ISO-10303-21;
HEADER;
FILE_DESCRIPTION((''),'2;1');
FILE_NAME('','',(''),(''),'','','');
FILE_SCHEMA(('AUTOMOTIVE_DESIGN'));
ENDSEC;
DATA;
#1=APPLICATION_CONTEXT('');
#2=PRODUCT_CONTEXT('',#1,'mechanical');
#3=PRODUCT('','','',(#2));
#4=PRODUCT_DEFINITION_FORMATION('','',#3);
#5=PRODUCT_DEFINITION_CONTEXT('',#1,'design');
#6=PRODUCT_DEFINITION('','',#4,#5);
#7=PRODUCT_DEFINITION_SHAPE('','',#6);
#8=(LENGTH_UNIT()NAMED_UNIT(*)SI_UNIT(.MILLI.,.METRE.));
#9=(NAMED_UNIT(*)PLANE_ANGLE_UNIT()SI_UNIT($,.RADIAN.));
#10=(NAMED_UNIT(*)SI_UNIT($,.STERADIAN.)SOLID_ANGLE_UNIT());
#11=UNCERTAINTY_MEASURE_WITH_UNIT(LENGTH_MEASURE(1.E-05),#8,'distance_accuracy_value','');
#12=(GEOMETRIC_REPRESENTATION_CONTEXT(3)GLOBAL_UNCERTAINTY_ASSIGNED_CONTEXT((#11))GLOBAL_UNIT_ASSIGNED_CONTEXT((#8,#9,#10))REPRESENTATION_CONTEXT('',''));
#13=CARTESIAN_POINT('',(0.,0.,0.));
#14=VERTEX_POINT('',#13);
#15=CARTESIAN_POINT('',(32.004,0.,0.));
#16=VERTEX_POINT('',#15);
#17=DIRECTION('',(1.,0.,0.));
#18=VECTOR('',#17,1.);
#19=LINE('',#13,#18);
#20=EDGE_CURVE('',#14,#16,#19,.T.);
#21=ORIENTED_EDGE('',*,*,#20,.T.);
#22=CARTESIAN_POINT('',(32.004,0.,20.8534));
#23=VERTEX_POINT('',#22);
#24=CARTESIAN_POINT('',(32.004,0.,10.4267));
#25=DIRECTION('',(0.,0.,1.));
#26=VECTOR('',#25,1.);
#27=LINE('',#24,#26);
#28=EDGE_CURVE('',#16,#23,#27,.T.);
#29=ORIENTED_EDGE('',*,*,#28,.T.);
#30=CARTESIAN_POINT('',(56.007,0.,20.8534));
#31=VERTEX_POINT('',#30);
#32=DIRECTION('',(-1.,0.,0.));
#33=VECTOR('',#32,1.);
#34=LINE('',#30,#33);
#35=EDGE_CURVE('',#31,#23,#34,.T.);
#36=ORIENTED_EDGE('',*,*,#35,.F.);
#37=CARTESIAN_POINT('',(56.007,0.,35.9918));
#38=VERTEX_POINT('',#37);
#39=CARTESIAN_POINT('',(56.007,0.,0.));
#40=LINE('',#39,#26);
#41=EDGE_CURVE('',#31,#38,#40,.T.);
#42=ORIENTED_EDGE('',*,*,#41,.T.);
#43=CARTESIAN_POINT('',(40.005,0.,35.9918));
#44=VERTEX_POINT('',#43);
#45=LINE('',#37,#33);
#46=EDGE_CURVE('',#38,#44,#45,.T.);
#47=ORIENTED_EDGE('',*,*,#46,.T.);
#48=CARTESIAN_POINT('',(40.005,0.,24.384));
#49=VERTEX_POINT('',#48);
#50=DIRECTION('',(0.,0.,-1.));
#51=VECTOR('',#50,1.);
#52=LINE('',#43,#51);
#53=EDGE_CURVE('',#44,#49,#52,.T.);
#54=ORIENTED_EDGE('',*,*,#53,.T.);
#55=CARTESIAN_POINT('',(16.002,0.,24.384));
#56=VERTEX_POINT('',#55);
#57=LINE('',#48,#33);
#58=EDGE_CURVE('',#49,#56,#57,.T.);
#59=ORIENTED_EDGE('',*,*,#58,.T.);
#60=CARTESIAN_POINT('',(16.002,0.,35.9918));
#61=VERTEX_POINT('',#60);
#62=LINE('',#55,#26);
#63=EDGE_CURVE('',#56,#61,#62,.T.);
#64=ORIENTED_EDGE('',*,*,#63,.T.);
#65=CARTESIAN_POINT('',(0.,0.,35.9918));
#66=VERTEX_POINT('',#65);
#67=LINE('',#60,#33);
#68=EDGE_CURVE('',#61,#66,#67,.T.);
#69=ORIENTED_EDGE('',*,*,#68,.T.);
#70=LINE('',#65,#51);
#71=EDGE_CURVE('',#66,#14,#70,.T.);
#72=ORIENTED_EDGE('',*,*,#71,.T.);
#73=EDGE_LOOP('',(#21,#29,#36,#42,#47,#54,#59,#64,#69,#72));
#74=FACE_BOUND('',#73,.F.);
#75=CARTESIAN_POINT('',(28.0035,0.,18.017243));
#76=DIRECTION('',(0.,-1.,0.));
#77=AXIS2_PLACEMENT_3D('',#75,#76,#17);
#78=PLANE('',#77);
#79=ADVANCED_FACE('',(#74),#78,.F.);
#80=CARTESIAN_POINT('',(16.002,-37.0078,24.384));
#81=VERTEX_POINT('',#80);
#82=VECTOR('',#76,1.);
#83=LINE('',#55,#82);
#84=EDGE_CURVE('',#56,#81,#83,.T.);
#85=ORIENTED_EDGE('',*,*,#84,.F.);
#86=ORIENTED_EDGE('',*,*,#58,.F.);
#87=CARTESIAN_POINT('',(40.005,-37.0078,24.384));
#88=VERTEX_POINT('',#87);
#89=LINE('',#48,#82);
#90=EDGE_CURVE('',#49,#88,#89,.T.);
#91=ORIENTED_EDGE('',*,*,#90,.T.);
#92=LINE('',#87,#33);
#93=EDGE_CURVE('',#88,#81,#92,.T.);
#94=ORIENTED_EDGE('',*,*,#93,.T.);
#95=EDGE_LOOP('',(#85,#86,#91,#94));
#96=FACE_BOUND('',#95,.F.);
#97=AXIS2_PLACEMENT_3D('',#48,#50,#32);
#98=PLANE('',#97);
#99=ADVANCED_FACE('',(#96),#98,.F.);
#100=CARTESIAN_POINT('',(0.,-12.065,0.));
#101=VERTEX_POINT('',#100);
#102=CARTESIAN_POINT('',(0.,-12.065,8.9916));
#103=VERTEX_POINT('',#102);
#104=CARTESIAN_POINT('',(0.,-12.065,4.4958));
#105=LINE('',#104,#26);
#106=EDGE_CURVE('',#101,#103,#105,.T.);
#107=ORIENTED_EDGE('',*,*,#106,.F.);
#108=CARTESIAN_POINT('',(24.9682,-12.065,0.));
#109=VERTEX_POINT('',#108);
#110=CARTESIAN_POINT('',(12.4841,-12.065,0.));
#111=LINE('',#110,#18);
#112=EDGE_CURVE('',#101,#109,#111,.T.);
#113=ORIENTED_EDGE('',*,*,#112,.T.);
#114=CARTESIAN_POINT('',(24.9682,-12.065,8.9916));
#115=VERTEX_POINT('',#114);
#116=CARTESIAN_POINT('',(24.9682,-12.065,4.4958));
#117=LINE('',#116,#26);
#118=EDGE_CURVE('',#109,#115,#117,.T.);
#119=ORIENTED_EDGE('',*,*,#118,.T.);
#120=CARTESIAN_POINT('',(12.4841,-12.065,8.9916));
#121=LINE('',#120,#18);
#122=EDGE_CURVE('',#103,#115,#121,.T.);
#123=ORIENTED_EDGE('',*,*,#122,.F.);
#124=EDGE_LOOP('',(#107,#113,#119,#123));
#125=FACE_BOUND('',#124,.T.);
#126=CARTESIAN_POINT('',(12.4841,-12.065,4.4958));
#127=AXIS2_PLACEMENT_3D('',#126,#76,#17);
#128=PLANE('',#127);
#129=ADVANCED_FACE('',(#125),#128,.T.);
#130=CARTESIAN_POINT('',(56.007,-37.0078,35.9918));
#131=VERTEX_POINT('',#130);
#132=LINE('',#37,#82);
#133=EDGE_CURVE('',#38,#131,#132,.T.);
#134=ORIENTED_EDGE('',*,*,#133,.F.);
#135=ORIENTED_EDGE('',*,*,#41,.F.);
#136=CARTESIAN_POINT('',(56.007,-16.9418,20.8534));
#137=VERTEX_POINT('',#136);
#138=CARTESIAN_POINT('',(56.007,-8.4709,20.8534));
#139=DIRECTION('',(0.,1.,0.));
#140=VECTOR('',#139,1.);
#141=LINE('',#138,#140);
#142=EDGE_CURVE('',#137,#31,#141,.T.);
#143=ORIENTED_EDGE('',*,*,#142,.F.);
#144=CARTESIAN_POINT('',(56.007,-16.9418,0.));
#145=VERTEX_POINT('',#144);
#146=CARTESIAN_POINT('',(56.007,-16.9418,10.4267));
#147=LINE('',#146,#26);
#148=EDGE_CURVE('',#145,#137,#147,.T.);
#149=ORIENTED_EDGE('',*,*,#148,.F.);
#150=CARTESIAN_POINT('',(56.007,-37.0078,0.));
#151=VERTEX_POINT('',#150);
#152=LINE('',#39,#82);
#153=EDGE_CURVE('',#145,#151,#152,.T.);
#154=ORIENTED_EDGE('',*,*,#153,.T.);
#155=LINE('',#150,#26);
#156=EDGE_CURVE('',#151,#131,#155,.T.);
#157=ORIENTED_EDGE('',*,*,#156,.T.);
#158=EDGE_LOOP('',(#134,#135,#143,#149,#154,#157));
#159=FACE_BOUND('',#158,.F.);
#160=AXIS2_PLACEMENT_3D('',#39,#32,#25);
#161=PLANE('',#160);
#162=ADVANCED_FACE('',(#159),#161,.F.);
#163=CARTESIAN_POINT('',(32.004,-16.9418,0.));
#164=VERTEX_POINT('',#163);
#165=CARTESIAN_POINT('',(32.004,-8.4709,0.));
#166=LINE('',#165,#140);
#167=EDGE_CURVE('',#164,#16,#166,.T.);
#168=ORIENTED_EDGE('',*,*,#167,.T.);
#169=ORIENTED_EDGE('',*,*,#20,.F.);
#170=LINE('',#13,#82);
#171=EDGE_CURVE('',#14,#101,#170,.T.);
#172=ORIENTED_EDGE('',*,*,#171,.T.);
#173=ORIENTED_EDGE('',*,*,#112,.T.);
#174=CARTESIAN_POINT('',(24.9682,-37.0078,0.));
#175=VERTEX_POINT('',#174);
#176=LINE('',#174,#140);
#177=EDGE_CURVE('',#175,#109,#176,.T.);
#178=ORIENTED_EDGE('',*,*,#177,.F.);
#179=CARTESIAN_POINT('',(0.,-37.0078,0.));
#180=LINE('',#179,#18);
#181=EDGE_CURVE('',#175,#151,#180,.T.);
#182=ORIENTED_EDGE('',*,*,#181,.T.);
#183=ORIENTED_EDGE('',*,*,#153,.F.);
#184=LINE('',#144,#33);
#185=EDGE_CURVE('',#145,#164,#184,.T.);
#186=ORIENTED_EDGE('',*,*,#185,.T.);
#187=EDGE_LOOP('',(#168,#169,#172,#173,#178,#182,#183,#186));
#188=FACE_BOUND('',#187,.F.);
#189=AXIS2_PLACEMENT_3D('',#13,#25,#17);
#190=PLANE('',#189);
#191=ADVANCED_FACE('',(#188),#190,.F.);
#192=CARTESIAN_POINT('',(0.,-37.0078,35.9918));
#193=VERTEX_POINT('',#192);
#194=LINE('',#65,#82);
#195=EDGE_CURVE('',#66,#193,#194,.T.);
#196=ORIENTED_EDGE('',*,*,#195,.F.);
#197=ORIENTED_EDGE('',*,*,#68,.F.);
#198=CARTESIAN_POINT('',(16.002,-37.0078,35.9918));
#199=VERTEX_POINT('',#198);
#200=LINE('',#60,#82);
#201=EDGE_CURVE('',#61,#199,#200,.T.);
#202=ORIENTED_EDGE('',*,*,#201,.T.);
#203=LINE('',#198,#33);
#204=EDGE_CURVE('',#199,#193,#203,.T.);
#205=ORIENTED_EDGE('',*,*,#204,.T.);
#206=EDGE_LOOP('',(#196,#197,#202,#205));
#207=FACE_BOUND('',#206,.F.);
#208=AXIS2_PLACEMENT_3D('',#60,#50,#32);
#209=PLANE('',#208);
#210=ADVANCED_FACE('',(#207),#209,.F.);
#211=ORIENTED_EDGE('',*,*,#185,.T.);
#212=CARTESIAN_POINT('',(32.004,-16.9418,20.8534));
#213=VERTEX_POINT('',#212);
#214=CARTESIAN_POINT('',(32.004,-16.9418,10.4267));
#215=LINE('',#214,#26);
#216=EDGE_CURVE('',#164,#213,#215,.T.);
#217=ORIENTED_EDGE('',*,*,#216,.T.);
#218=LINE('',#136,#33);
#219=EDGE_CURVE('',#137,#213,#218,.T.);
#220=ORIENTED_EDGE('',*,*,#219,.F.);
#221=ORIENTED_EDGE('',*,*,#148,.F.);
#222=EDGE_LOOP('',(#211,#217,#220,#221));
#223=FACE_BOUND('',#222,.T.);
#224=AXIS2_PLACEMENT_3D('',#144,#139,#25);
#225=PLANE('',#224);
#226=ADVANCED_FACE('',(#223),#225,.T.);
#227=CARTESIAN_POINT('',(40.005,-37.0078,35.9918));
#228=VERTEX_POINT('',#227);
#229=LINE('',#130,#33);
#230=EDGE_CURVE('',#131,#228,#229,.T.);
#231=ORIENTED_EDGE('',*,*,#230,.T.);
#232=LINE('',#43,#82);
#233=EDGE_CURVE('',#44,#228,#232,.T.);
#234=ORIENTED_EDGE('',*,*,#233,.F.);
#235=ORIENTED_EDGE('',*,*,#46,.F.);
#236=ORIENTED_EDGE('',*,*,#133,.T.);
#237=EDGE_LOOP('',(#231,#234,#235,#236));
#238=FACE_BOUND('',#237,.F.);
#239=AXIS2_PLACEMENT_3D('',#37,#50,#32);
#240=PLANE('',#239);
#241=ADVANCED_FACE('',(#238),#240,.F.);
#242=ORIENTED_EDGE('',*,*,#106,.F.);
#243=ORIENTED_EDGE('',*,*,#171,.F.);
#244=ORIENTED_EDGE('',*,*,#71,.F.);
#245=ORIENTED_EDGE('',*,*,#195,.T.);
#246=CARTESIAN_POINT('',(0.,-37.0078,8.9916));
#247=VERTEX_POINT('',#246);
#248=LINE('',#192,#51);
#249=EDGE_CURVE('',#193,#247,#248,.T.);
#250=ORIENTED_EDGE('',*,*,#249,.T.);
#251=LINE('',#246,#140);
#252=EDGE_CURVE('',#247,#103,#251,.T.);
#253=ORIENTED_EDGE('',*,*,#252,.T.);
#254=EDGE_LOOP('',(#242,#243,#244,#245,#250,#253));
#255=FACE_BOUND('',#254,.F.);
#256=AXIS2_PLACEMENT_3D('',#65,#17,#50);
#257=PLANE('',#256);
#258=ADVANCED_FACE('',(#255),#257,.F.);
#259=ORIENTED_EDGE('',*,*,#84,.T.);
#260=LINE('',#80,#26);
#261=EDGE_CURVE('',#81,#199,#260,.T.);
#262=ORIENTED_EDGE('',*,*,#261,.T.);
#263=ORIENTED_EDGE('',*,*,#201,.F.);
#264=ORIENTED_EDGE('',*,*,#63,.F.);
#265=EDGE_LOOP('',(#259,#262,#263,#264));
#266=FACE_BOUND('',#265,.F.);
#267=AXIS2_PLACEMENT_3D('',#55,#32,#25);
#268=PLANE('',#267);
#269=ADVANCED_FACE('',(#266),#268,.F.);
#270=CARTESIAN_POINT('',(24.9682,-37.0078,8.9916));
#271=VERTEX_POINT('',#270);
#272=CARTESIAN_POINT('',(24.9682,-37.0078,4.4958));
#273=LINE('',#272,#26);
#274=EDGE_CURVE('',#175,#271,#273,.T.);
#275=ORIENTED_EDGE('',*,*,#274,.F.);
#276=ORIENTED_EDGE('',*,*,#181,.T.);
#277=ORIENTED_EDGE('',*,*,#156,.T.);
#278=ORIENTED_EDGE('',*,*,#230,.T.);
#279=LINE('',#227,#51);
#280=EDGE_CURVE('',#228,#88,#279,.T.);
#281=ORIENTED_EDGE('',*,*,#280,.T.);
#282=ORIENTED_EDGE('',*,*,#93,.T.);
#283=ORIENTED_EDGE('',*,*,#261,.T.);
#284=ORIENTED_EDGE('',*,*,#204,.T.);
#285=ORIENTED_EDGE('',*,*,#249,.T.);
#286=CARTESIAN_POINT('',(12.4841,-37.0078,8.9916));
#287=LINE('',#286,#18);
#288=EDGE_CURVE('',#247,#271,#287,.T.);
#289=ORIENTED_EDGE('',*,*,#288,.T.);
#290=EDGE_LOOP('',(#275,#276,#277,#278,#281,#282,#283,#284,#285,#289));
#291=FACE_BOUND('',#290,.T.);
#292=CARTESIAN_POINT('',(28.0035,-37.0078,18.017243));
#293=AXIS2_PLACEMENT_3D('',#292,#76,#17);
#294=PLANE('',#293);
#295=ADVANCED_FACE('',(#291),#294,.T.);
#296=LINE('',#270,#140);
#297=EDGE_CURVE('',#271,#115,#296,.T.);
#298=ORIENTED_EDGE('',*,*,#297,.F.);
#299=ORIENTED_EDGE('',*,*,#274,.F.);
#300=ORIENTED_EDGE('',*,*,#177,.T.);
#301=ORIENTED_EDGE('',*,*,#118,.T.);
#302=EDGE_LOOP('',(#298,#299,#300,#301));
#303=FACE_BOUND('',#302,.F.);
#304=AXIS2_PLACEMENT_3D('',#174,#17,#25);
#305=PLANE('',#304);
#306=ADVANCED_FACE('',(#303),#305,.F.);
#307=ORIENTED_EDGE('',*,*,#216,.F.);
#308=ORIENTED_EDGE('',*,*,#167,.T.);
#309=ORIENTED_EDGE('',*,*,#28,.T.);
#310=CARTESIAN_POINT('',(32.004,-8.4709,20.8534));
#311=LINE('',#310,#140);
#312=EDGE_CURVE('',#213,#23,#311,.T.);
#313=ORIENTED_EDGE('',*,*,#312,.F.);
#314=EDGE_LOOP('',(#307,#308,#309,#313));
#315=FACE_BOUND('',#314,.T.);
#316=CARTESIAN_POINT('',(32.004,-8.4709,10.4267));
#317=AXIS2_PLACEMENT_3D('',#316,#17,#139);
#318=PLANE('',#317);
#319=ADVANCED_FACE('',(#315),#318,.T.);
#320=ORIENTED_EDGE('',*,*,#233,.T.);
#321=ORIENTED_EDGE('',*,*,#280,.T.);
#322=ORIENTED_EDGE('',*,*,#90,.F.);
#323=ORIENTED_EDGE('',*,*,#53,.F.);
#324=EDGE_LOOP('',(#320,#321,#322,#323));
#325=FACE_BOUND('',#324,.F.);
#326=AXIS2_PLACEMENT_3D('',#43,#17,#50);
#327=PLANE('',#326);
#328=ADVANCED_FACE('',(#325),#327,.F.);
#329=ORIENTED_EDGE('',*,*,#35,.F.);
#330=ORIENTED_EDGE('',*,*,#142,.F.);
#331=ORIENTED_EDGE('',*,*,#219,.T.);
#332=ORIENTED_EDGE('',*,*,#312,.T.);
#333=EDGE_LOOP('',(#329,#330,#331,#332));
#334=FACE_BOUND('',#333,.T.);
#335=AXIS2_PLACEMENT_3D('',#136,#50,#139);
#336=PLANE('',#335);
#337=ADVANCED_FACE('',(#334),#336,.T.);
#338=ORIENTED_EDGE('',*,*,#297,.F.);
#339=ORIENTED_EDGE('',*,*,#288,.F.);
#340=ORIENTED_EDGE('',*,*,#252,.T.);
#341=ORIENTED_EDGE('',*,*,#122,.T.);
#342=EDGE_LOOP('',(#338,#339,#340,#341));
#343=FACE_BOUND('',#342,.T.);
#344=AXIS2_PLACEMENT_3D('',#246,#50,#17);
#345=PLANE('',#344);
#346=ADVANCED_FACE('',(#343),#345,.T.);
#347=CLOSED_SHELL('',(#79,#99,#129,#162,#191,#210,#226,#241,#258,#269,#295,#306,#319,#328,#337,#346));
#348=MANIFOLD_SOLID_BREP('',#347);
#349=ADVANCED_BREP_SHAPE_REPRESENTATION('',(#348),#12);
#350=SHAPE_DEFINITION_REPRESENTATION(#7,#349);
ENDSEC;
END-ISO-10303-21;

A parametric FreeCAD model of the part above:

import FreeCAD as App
import Part
import Sketcher
from FreeCAD import Vector
Q = App.Units.Quantity

doc = App.newDocument("Part")
params = doc.addObject("Spreadsheet::Sheet", "Params")
for row, (alias, value) in enumerate([
    ("sketch1_width", "0.63 in"),
    ("sketch1_width2", "2.205 in"),
    ("sketch1_height", "1.417 in"),
    ("sketch1_height2", "0.457 in"),
    ("pad1_length", "1.457 in"),
    ("sketch2_width", "0.983 in"),
    ("sketch2_height", "0.354 in"),
    ("pocket1_length", "0.982 in"),
    ("sketch3_width", "0.667 in"),
    ("sketch3_height", "0.821 in"),
    ("pocket2_length", "0.945 in"),
], start=1):
    params.set(f"A{row}", alias)
    params.set(f"B{row}", "=" + value)
    params.setAlias(f"B{row}", alias)

body = doc.addObject("PartDesign::Body", "Body")

# Sketch on XZ plane
sketch1 = body.newObject("Sketcher::SketchObject", "Sketch")
sketch1.AttachmentSupport = (doc.getObject("XZ_Plane"), [""])
sketch1.MapMode = "FlatFace"
sketch1.addGeometry([
    Part.LineSegment(Vector(0, 36, 0), Vector(0, 0, 0)),  # 0
    Part.LineSegment(Vector(0, 0, 0), Vector(56, 0, 0)),  # 1
    Part.LineSegment(Vector(56, 0, 0), Vector(56, 36, 0)),  # 2
    Part.LineSegment(Vector(56, 36, 0), Vector(40, 36, 0)),  # 3
    Part.LineSegment(Vector(40, 36, 0), Vector(40, 24, 0)),  # 4
    Part.LineSegment(Vector(40, 24, 0), Vector(16, 24, 0)),  # 5
    Part.LineSegment(Vector(16, 24, 0), Vector(16, 36, 0)),  # 6
    Part.LineSegment(Vector(16, 36, 0), Vector(0, 36, 0)),  # 7
], False)
sketch1.addConstraint([
    Sketcher.Constraint("Coincident", 0, 2, 1, 1),
    Sketcher.Constraint("Coincident", 1, 2, 2, 1),
    Sketcher.Constraint("Coincident", 2, 2, 3, 1),
    Sketcher.Constraint("Coincident", 3, 2, 4, 1),
    Sketcher.Constraint("Coincident", 4, 2, 5, 1),
    Sketcher.Constraint("Coincident", 5, 2, 6, 1),
    Sketcher.Constraint("Coincident", 6, 2, 7, 1),
    Sketcher.Constraint("Coincident", 7, 2, 0, 1),
    Sketcher.Constraint("Vertical", 0),
    Sketcher.Constraint("Horizontal", 1),
    Sketcher.Constraint("Vertical", 2),
    Sketcher.Constraint("Horizontal", 3),
    Sketcher.Constraint("Vertical", 4),
    Sketcher.Constraint("Horizontal", 5),
    Sketcher.Constraint("Vertical", 6),
    Sketcher.Constraint("Horizontal", 7),
    Sketcher.Constraint("Coincident", 0, 2, -1, 1),
    Sketcher.Constraint("Horizontal", 3, 2, 6, 2),
    Sketcher.Constraint("Equal", 3, 7),
    Sketcher.Constraint("DistanceX", 3, 2, 3, 1, Q("0.63 in")),
    Sketcher.Constraint("DistanceX", 1, 1, 1, 2, Q("2.205 in")),
    Sketcher.Constraint("DistanceY", 0, 2, 0, 1, Q("1.417 in")),
    Sketcher.Constraint("DistanceY", 4, 2, 4, 1, Q("0.457 in")),
])
sketch1.setExpression("Constraints[19]", "Params.sketch1_width")
sketch1.setExpression("Constraints[20]", "Params.sketch1_width2")
sketch1.setExpression("Constraints[21]", "Params.sketch1_height")
sketch1.setExpression("Constraints[22]", "Params.sketch1_height2")
pad1 = body.newObject("PartDesign::Pad", "Pad")
pad1.Profile = sketch1
pad1.setExpression("Length", "Params.pad1_length")

# Sketch on XZ plane
sketch2 = body.newObject("Sketcher::SketchObject", "Sketch001")
sketch2.AttachmentSupport = (doc.getObject("XZ_Plane"), [""])
sketch2.MapMode = "FlatFace"
sketch2.AttachmentOffset = App.Placement(Vector(0, 0, 1.457 * 25.4), App.Rotation())
sketch2.addGeometry([
    Part.LineSegment(Vector(0, 9, 0), Vector(0, 0, 0)),
    Part.LineSegment(Vector(0, 0, 0), Vector(25, 0, 0)),
    Part.LineSegment(Vector(25, 0, 0), Vector(25, 9, 0)),
    Part.LineSegment(Vector(25, 9, 0), Vector(0, 9, 0)),
], False)
sketch2.addConstraint([
    Sketcher.Constraint("Coincident", 0, 2, 1, 1),
    Sketcher.Constraint("Coincident", 1, 2, 2, 1),
    Sketcher.Constraint("Coincident", 2, 2, 3, 1),
    Sketcher.Constraint("Coincident", 3, 2, 0, 1),
    Sketcher.Constraint("Vertical", 0),
    Sketcher.Constraint("Horizontal", 1),
    Sketcher.Constraint("Vertical", 2),
    Sketcher.Constraint("Horizontal", 3),
    Sketcher.Constraint("Coincident", 0, 2, -1, 1),
    Sketcher.Constraint("DistanceX", 1, 1, 1, 2, Q("0.983 in")),
    Sketcher.Constraint("DistanceY", 0, 2, 0, 1, Q("0.354 in")),
])
sketch2.setExpression("Constraints[9]", "Params.sketch2_width")
sketch2.setExpression("Constraints[10]", "Params.sketch2_height")
pocket1 = body.newObject("PartDesign::Pocket", "Pocket")
pocket1.Profile = sketch2
pocket1.setExpression("Length", "Params.pocket1_length")

# Sketch on YZ plane
sketch3 = body.newObject("Sketcher::SketchObject", "Sketch002")
sketch3.AttachmentSupport = (doc.getObject("YZ_Plane"), [""])
sketch3.MapMode = "FlatFace"
sketch3.AttachmentOffset = App.Placement(Vector(0, 0, 2.205 * 25.4), App.Rotation())
sketch3.addGeometry([
    Part.LineSegment(Vector(-17, 21, 0), Vector(-17, 0, 0)),
    Part.LineSegment(Vector(-17, 0, 0), Vector(0, 0, 0)),
    Part.LineSegment(Vector(0, 0, 0), Vector(0, 21, 0)),
    Part.LineSegment(Vector(0, 21, 0), Vector(-17, 21, 0)),
], False)
sketch3.addConstraint([
    Sketcher.Constraint("Coincident", 0, 2, 1, 1),
    Sketcher.Constraint("Coincident", 1, 2, 2, 1),
    Sketcher.Constraint("Coincident", 2, 2, 3, 1),
    Sketcher.Constraint("Coincident", 3, 2, 0, 1),
    Sketcher.Constraint("Vertical", 0),
    Sketcher.Constraint("Horizontal", 1),
    Sketcher.Constraint("Vertical", 2),
    Sketcher.Constraint("Horizontal", 3),
    Sketcher.Constraint("Coincident", 1, 2, -1, 1),
    Sketcher.Constraint("DistanceX", 1, 1, 1, 2, Q("0.667 in")),
    Sketcher.Constraint("DistanceY", 0, 2, 0, 1, Q("0.821 in")),
])
sketch3.setExpression("Constraints[9]", "Params.sketch3_width")
sketch3.setExpression("Constraints[10]", "Params.sketch3_height")
pocket2 = body.newObject("PartDesign::Pocket", "Pocket001")
pocket2.Profile = sketch3
pocket2.setExpression("Length", "Params.pocket2_length")

doc.recompute()
